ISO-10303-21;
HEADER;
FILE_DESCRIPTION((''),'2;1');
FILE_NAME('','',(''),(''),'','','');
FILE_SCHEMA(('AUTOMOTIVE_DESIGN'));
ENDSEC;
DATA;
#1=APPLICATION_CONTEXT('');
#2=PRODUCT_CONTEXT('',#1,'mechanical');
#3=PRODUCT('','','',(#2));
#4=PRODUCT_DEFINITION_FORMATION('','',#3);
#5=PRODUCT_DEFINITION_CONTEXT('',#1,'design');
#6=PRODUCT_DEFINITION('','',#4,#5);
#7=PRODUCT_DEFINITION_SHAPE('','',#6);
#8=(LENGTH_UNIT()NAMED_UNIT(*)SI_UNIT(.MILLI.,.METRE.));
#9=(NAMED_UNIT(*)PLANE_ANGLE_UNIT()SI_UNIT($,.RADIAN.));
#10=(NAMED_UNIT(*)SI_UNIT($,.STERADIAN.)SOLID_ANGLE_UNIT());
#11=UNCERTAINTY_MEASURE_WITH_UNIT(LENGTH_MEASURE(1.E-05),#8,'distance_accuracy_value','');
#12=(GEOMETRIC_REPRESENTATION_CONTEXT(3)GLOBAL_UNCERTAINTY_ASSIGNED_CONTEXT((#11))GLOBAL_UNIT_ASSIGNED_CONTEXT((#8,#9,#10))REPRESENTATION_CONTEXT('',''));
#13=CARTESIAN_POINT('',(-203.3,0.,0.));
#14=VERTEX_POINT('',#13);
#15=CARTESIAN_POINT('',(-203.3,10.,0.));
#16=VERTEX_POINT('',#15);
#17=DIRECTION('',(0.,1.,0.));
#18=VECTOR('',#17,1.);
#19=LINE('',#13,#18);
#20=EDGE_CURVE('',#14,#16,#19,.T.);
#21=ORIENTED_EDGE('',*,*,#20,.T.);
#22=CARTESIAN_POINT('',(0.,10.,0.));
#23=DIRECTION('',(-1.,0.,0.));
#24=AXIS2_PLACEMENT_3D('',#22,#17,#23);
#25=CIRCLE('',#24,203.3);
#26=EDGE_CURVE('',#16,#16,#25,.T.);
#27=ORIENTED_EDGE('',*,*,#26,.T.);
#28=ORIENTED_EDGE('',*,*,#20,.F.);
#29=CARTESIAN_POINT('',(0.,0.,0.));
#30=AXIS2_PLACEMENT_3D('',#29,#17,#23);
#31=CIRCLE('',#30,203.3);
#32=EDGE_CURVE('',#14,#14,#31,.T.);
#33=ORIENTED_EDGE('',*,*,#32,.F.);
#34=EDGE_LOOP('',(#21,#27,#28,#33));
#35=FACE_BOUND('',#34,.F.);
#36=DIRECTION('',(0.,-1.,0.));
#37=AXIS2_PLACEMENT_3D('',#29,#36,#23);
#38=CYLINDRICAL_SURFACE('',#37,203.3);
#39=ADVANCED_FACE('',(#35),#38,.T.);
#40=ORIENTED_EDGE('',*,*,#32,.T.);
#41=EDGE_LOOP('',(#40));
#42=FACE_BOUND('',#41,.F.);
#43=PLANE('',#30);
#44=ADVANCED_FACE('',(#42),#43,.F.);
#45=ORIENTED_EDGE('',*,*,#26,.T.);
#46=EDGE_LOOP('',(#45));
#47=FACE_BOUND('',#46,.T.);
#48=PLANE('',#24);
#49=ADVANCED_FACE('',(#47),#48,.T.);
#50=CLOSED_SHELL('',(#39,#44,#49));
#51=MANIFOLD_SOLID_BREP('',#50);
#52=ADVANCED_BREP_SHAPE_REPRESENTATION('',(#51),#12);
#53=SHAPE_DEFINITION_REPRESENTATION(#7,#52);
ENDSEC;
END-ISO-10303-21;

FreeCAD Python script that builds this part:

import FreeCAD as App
import Part
import Sketcher
from FreeCAD import Vector
Q = App.Units.Quantity

doc = App.newDocument("Part")
params = doc.addObject("Spreadsheet::Sheet", "Params")
for row, (alias, value) in enumerate([
    ("sketch1_diameter", "406.6 mm"),
    ("pad1_length", "10 mm"),
], start=1):
    params.set(f"A{row}", alias)
    params.set(f"B{row}", "=" + value)
    params.setAlias(f"B{row}", alias)

body = doc.addObject("PartDesign::Body", "Body")

sketch1 = doc.addObject("Sketcher::SketchObject", "Sketch")
body.addObject(sketch1)
sketch1.AttachmentSupport = (doc.XZ_Plane, [""])
sketch1.MapMode = "FlatFace"
sketch1.addGeometry(Part.Circle(Vector(0, 0, 0), Vector(0, 0, 1), 203.3), False)
sketch1.addConstraint([
    Sketcher.Constraint("Coincident", 0, 3, -1, 1),
    Sketcher.Constraint("Diameter", 0, Q("406.6 mm")),
])
sketch1.setExpression("Constraints[1]", "Params.sketch1_diameter")
pad1 = doc.addObject("PartDesign::Pad", "Pad")
body.addObject(pad1)
pad1.Profile = sketch1
pad1.setExpression("Length", "Params.pad1_length")
pad1.Reversed = True

doc.recompute()
